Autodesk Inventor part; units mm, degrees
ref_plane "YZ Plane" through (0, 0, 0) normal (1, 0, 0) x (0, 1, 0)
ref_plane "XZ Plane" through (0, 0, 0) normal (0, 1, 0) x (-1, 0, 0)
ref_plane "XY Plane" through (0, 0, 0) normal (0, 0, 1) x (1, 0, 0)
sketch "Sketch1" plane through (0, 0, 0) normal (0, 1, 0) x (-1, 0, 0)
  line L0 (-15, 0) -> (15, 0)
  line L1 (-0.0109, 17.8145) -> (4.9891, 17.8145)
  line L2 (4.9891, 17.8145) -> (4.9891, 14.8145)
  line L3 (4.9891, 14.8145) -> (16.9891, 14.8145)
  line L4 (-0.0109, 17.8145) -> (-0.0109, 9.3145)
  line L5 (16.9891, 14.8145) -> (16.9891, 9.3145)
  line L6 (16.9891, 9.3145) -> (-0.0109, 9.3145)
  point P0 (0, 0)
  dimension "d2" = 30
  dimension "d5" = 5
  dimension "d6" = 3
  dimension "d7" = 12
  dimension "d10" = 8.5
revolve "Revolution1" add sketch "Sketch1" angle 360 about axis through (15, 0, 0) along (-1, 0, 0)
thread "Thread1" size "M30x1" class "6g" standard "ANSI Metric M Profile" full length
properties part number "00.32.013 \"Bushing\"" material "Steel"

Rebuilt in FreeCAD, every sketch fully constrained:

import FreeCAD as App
import Part
import Sketcher

doc = App.newDocument("Part")
params = doc.addObject("Spreadsheet::Sheet", "Params")
for row, (alias, value) in enumerate([
    ("sketch1_width", "5 mm"),
    ("sketch1_width2", "12 mm"),
    ("sketch1_height", "3 mm"),
    ("sketch1_height2", "8.5 mm"),
    ("revolution_angle", "360 deg"),
], start=1):
    params.set(f"A{row}", alias)
    params.set(f"B{row}", "=" + value)
    params.setAlias(f"B{row}", alias)

body = doc.addObject("PartDesign::Body", "Body")

# Sketch on XZ plane
sketch1 = body.newObject("Sketcher::SketchObject", "Sketch")
sketch1.AttachmentSupport = (doc.getObject("XZ_Plane"), [""])
sketch1.MapMode = "FlatFace"
sketch1.addGeometry(Part.LineSegment(App.Vector(-5, 17.8, 0), App.Vector(0, 17.8, 0)), False)
sketch1.addGeometry(Part.LineSegment(App.Vector(0, 17.8, 0), App.Vector(0, 9.3, 0)), False)
sketch1.addGeometry(Part.LineSegment(App.Vector(0, 9.3, 0), App.Vector(-17, 9.3, 0)), False)
sketch1.addGeometry(Part.LineSegment(App.Vector(-17, 9.3, 0), App.Vector(-17, 14.8, 0)), False)
sketch1.addGeometry(Part.LineSegment(App.Vector(-17, 14.8, 0), App.Vector(-5, 14.8, 0)), False)
sketch1.addGeometry(Part.LineSegment(App.Vector(-5, 14.8, 0), App.Vector(-5, 17.8, 0)), False)
sketch1.addConstraint(Sketcher.Constraint("Coincident", 0, 2, 1, 1))
sketch1.addConstraint(Sketcher.Constraint("Coincident", 1, 2, 2, 1))
sketch1.addConstraint(Sketcher.Constraint("Coincident", 2, 2, 3, 1))
sketch1.addConstraint(Sketcher.Constraint("Coincident", 3, 2, 4, 1))
sketch1.addConstraint(Sketcher.Constraint("Coincident", 4, 2, 5, 1))
sketch1.addConstraint(Sketcher.Constraint("Coincident", 5, 2, 0, 1))
sketch1.addConstraint(Sketcher.Constraint("Horizontal", 0))
sketch1.addConstraint(Sketcher.Constraint("Vertical", 1))
sketch1.addConstraint(Sketcher.Constraint("Horizontal", 2))
sketch1.addConstraint(Sketcher.Constraint("Vertical", 3))
sketch1.addConstraint(Sketcher.Constraint("Horizontal", 4))
sketch1.addConstraint(Sketcher.Constraint("Vertical", 5))
sketch1.addConstraint(Sketcher.Constraint("DistanceX", 0, 1, 0, 2, 5.0))
sketch1.addConstraint(Sketcher.Constraint("DistanceX", 4, 1, 4, 2, 12.0))
sketch1.addConstraint(Sketcher.Constraint("DistanceY", 5, 1, 5, 2, 3.0))
sketch1.addConstraint(Sketcher.Constraint("DistanceY", 1, 2, 1, 1, 8.5))
sketch1.addConstraint(Sketcher.Constraint("DistanceX", -1, 1, 0, 2, 0.011))
sketch1.addConstraint(Sketcher.Constraint("DistanceY", -1, 1, 0, 2, 17.8145))
sketch1.setExpression("Constraints[12]", "Params.sketch1_width")
sketch1.setExpression("Constraints[13]", "Params.sketch1_width2")
sketch1.setExpression("Constraints[14]", "Params.sketch1_height")
sketch1.setExpression("Constraints[15]", "Params.sketch1_height2")
revolution = body.newObject("PartDesign::Revolution", "Revolution")
revolution.Profile = sketch1
revolution.ReferenceAxis = (sketch1, ["H_Axis"])
revolution.setExpression("Angle", "Params.revolution_angle")

doc.recompute()
